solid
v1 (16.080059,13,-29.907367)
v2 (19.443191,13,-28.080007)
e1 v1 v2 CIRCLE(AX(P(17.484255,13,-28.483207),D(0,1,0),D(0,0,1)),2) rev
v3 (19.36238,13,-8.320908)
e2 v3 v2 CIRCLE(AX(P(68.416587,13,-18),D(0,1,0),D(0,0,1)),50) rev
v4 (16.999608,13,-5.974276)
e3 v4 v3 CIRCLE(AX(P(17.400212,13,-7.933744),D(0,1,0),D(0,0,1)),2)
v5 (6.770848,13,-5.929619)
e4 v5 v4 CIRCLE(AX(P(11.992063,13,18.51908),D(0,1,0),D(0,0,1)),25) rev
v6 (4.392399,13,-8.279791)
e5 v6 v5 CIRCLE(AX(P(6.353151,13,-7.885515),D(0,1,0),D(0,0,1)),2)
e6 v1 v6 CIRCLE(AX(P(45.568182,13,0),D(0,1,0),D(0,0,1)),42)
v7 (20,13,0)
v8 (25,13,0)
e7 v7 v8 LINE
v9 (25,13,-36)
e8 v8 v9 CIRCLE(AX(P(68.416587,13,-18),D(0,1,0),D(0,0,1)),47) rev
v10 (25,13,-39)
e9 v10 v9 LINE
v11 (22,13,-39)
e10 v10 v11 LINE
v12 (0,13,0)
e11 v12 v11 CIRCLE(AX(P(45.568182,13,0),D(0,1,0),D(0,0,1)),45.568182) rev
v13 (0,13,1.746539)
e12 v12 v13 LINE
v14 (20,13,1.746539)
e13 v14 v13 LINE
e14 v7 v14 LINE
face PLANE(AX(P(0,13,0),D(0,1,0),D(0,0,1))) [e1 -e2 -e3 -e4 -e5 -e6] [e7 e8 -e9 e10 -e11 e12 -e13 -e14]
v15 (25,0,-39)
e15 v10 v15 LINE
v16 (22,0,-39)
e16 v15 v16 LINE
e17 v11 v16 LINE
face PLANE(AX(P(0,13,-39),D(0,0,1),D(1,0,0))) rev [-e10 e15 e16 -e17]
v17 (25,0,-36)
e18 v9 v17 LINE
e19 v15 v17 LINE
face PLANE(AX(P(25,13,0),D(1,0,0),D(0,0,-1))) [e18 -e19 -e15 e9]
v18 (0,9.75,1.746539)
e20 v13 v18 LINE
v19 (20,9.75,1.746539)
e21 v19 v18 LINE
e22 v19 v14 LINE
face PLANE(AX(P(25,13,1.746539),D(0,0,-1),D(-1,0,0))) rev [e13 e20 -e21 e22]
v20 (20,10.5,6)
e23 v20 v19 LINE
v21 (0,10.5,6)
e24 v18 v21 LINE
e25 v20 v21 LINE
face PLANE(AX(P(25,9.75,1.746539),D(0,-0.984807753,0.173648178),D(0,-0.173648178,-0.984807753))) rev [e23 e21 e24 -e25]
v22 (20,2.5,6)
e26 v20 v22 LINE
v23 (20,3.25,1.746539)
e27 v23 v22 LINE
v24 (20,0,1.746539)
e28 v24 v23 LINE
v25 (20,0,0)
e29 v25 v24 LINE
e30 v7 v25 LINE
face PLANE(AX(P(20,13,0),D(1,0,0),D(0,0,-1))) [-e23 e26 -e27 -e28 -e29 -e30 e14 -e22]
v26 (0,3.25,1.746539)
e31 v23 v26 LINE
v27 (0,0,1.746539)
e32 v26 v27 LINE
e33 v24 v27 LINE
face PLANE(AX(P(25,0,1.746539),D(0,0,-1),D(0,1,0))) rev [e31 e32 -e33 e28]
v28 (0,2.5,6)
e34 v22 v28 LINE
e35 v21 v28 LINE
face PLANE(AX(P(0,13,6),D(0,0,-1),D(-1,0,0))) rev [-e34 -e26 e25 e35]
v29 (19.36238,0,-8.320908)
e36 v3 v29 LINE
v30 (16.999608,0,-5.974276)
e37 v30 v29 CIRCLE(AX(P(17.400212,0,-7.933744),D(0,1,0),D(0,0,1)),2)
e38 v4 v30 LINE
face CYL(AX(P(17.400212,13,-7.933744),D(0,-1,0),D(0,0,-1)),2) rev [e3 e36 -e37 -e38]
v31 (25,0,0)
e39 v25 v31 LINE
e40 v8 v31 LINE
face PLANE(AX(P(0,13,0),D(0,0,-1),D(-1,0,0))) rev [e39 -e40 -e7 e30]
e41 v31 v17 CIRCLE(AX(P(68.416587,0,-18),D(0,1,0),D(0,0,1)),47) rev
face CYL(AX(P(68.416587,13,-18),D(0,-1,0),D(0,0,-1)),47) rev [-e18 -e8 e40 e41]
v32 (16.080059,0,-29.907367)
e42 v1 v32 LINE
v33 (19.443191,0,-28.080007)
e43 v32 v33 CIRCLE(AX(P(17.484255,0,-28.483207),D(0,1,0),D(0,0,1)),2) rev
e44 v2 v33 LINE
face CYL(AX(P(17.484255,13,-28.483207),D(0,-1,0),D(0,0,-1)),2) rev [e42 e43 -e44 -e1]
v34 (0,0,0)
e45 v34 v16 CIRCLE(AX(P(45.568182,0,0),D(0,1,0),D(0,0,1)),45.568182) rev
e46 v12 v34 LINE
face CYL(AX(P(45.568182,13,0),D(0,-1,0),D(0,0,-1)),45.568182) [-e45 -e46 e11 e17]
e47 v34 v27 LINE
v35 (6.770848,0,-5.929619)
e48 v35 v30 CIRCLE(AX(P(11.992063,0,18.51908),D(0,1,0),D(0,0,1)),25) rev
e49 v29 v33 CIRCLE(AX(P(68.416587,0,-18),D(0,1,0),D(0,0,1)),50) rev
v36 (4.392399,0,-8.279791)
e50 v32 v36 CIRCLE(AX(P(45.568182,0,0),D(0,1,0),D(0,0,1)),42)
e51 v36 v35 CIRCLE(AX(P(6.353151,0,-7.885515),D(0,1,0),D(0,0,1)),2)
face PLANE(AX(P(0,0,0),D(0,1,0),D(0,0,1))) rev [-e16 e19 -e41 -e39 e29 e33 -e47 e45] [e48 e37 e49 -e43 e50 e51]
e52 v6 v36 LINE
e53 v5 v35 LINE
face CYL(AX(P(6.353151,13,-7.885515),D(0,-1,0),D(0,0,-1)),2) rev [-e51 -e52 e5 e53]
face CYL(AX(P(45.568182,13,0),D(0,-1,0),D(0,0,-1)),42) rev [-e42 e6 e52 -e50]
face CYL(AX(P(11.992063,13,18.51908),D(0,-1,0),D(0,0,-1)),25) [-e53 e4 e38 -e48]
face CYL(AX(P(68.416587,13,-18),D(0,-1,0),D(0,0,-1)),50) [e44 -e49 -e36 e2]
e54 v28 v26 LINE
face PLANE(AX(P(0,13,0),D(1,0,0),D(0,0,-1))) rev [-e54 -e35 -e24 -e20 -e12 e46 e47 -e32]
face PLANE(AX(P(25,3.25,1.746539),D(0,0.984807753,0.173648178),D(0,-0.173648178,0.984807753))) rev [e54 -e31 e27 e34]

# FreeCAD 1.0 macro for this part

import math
import FreeCAD as App
import Part
import Sketcher
from FreeCAD import Vector
Q = App.Units.Quantity

doc = App.newDocument("Part")
params = doc.addObject("Spreadsheet::Sheet", "Params")
for row, (alias, value) in enumerate([
    ("sketch1_radius", "47 mm"),
    ("sketch1_radius2", "42 mm"),
    ("sketch1_radius3", "2 mm"),
    ("sketch1_radius4", "50 mm"),
    ("sketch1_radius5", "25 mm"),
    ("pad1_length", "13 mm"),
    ("sketch2_width", "2.5 mm"),
    ("sketch2_width2", "3.25 mm"),
], start=1):
    params.set(f"A{row}", alias)
    params.set(f"B{row}", "=" + value)
    params.setAlias(f"B{row}", alias)

body = doc.addObject("PartDesign::Body", "Body")

# Sketch on XZ plane
sketch1 = doc.addObject("Sketcher::SketchObject", "Sketch")
body.addObject(sketch1)
sketch1.AttachmentSupport = (doc.XZ_Plane, [""])
sketch1.MapMode = "FlatFace"
sketch1.addGeometry([
    Part.LineSegment(Vector(20, 0, 0), Vector(25, 0, 0)),  # 0
    Part.ArcOfCircle(Part.Circle(Vector(68.4, -18, 0), Vector(0, 0, 1), 47), math.radians(157), math.radians(203)),  # 1
    Part.LineSegment(Vector(25, -36, 0), Vector(25, -39, 0)),  # 2
    Part.LineSegment(Vector(25, -39, 0), Vector(22, -39, 0)),  # 3
    Part.ArcOfCircle(Part.Circle(Vector(45.6, 0, 0), Vector(0, 0, 1), 45.6), math.radians(180), math.radians(239)),  # 4
    Part.LineSegment(Vector(0, 0, 0), Vector(0, 6, 0)),  # 5
    Part.LineSegment(Vector(0, 6, 0), Vector(20, 6, 0)),  # 6
    Part.LineSegment(Vector(20, 6, 0), Vector(20, 0, 0)),  # 7
    Part.ArcOfCircle(Part.Circle(Vector(45.6, 0, 0), Vector(0, 0, 1), 42), math.radians(-169), math.radians(-135)),  # 8
    Part.ArcOfCircle(Part.Circle(Vector(17.5, -28.5, 0), Vector(0, 0, 1), 2), math.radians(-135), math.radians(12)),  # 9
    Part.ArcOfCircle(Part.Circle(Vector(68.4, -18, 0), Vector(0, 0, 1), 50), math.radians(169), math.radians(192)),  # 10
    Part.ArcOfCircle(Part.Circle(Vector(17.4, -7.9, 0), Vector(0, 0, 1), 2), math.radians(-11), math.radians(102)),  # 11
    Part.ArcOfCircle(Part.Circle(Vector(12, 18.5, 0), Vector(0, 0, 1), 25), math.radians(-102), math.radians(-78)),  # 12
    Part.ArcOfCircle(Part.Circle(Vector(6.4, -7.9, 0), Vector(0, 0, 1), 2), math.radians(78), math.radians(191)),  # 13
], False)
sketch1.addConstraint([
    Sketcher.Constraint("Coincident", 0, 2, 1, 1),
    Sketcher.Constraint("Coincident", 1, 2, 2, 1),
    Sketcher.Constraint("Coincident", 2, 2, 3, 1),
    Sketcher.Constraint("Coincident", 3, 2, 4, 2),
    Sketcher.Constraint("Tangent", 4, 1, 5, 1),
    Sketcher.Constraint("Coincident", 5, 2, 6, 1),
    Sketcher.Constraint("Coincident", 6, 2, 7, 1),
    Sketcher.Constraint("Coincident", 7, 2, 0, 1),
    Sketcher.Constraint("Tangent", 8, 2, 9, 1),
    Sketcher.Constraint("Tangent", 9, 2, 10, 2),
    Sketcher.Constraint("Tangent", 10, 1, 11, 1),
    Sketcher.Constraint("Tangent", 11, 2, 12, 2),
    Sketcher.Constraint("Tangent", 12, 1, 13, 1),
    Sketcher.Constraint("Tangent", 13, 2, 8, 1),
    Sketcher.Constraint("Horizontal", 0),
    Sketcher.Constraint("Vertical", 2),
    Sketcher.Constraint("Horizontal", 3),
    Sketcher.Constraint("Vertical", 5),
    Sketcher.Constraint("Horizontal", 6),
    Sketcher.Constraint("Vertical", 7),
    Sketcher.Constraint("Coincident", 4, 1, -1, 1),
    Sketcher.Constraint("Coincident", 8, 3, 4, 3),
    Sketcher.Constraint("Coincident", 10, 3, 1, 3),
    Sketcher.Constraint("Equal", 9, 11),
    Sketcher.Constraint("Equal", 11, 13),
    Sketcher.Constraint("PointOnObject", 0, 2, -1),
    Sketcher.Constraint("Vertical", 0, 2, 1, 2),
    Sketcher.Constraint("Equal", 3, 2),
    Sketcher.Constraint("Radius", 1, Q("47 mm")),
    Sketcher.Constraint("Radius", 8, Q("42 mm")),
    Sketcher.Constraint("Radius", 9, Q("2 mm")),
    Sketcher.Constraint("Radius", 10, Q("50 mm")),
    Sketcher.Constraint("Radius", 12, Q("25 mm")),
    Sketcher.Constraint("DistanceX", 0, 1, 0, 2, Q("5 mm")),
    Sketcher.Constraint("DistanceX", 3, 2, 3, 1, Q("3 mm")),
    Sketcher.Constraint("DistanceX", 6, 1, 6, 2, Q("20 mm")),
    Sketcher.Constraint("DistanceY", 5, 1, 5, 2, Q("6 mm")),
    Sketcher.Constraint("DistanceY", 1, 3, -1, 1, Q("18 mm")),
    Sketcher.Constraint("DistanceX", -1, 1, 13, 2, Q("4.392399 mm")),
    Sketcher.Constraint("DistanceX", -1, 1, 11, 3, Q("17.400212 mm")),
])
sketch1.setExpression("Constraints[28]", "Params.sketch1_radius")
sketch1.setExpression("Constraints[29]", "Params.sketch1_radius2")
sketch1.setExpression("Constraints[30]", "Params.sketch1_radius3")
sketch1.setExpression("Constraints[31]", "Params.sketch1_radius4")
sketch1.setExpression("Constraints[32]", "Params.sketch1_radius5")
pad1 = doc.addObject("PartDesign::Pad", "Pad")
body.addObject(pad1)
pad1.Profile = sketch1
pad1.setExpression("Length", "Params.pad1_length")
pad1.Reversed = True

# Sketch on YZ plane
sketch2 = doc.addObject("Sketcher::SketchObject", "Sketch001")
body.addObject(sketch2)
sketch2.AttachmentSupport = (doc.YZ_Plane, [""])
sketch2.MapMode = "FlatFace"
sketch2.addGeometry([
    Part.LineSegment(Vector(13, 1.7, 0), Vector(9.8, 1.7, 0)),  # 0
    Part.LineSegment(Vector(9.8, 1.7, 0), Vector(10.5, 6, 0)),  # 1
    Part.LineSegment(Vector(10.5, 6, 0), Vector(13, 6, 0)),  # 2
    Part.LineSegment(Vector(13, 6, 0), Vector(13, 1.7, 0)),  # 3
    Part.LineSegment(Vector(0, 6, 0), Vector(2.5, 6, 0)),  # 4
    Part.LineSegment(Vector(2.5, 6, 0), Vector(3.2, 1.7, 0)),  # 5
    Part.LineSegment(Vector(3.2, 1.7, 0), Vector(0, 1.7, 0)),  # 6
    Part.LineSegment(Vector(0, 1.7, 0), Vector(0, 6, 0)),  # 7
], False)
sketch2.addConstraint([
    Sketcher.Constraint("Coincident", 0, 2, 1, 1),
    Sketcher.Constraint("Coincident", 1, 2, 2, 1),
    Sketcher.Constraint("Coincident", 2, 2, 3, 1),
    Sketcher.Constraint("Coincident", 3, 2, 0, 1),
    Sketcher.Constraint("Coincident", 4, 2, 5, 1),
    Sketcher.Constraint("Coincident", 5, 2, 6, 1),
    Sketcher.Constraint("Coincident", 6, 2, 7, 1),
    Sketcher.Constraint("Coincident", 7, 2, 4, 1),
    Sketcher.Constraint("Horizontal", 0),
    Sketcher.Constraint("Horizontal", 2),
    Sketcher.Constraint("Vertical", 3),
    Sketcher.Constraint("Horizontal", 4),
    Sketcher.Constraint("Horizontal", 6),
    Sketcher.Constraint("Vertical", 7),
    Sketcher.Constraint("PointOnObject", 6, 2, -2),
    Sketcher.Constraint("Horizontal", 2, 2, 4, 2),
    Sketcher.Constraint("Horizontal", 3, 2, 5, 2),
    Sketcher.Constraint("Equal", 2, 4),
    Sketcher.Constraint("Equal", 0, 6),
    Sketcher.Constraint("Angle", 1, Q("80 deg")),
    Sketcher.Constraint("DistanceX", 2, 1, 2, 2, Q("2.5 mm")),
    Sketcher.Constraint("DistanceY", -1, 1, 1, 2, Q("6 mm")),
    Sketcher.Constraint("DistanceX", -1, 1, 2, 2, Q("13 mm")),
    Sketcher.Constraint("DistanceX", 0, 2, 0, 1, Q("3.25 mm")),
])
sketch2.setExpression("Constraints[20]", "Params.sketch2_width")
sketch2.setExpression("Constraints[23]", "Params.sketch2_width2")
pocket1 = doc.addObject("PartDesign::Pocket", "Pocket")
body.addObject(pocket1)
pocket1.Profile = sketch2
pocket1.Type = "ThroughAll"
pocket1.Reversed = True

doc.recompute()
